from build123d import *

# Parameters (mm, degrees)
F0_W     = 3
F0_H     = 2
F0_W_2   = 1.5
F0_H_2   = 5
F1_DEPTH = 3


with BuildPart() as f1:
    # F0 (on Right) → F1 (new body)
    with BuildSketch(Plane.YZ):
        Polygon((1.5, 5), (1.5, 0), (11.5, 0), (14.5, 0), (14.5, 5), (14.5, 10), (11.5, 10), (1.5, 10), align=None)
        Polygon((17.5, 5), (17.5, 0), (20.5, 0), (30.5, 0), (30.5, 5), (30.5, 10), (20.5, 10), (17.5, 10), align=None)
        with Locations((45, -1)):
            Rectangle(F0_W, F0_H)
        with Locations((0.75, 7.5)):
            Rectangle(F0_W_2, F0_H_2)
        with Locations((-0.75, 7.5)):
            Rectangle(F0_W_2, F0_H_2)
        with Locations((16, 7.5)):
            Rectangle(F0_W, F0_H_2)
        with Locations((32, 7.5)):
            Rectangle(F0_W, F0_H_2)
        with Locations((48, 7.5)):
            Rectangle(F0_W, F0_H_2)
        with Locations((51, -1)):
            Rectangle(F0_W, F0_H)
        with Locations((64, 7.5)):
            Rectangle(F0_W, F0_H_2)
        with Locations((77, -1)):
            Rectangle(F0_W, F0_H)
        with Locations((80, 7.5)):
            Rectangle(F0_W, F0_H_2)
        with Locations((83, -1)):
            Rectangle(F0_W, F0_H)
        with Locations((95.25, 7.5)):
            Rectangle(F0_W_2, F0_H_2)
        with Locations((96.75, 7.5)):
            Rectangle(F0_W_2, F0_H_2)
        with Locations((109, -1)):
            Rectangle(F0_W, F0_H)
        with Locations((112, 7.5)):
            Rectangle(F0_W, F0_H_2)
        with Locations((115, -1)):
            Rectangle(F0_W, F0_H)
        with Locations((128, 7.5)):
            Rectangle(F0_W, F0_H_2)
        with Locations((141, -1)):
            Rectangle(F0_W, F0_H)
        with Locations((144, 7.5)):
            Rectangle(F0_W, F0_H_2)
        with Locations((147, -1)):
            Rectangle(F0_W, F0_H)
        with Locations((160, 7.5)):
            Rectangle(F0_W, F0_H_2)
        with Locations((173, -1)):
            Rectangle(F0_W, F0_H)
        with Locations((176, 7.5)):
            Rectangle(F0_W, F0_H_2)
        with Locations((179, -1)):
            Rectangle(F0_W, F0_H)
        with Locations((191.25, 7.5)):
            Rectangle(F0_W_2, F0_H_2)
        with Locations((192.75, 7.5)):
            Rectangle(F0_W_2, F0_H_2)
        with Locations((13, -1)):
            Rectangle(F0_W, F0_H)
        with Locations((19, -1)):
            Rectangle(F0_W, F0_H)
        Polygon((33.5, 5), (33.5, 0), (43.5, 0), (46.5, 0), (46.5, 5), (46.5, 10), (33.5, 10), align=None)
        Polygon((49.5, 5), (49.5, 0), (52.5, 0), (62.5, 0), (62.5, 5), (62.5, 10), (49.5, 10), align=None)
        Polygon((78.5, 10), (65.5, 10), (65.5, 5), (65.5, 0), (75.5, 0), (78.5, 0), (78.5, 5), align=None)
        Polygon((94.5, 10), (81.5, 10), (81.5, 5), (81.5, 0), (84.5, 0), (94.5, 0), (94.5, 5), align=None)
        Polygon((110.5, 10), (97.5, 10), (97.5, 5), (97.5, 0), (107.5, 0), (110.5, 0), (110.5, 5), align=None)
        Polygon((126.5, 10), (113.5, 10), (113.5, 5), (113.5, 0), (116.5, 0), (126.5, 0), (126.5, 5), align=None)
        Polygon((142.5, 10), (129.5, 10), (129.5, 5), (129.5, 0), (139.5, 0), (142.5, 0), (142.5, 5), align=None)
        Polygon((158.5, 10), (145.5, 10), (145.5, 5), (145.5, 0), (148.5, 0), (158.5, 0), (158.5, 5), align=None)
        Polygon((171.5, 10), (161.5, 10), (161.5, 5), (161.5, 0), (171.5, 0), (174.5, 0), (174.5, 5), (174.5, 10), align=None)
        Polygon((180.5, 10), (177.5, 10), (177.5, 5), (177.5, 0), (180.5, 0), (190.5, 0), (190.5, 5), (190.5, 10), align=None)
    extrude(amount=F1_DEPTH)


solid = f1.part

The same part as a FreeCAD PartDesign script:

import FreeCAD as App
import Part
import Sketcher

V = App.Vector
Q = App.Units.Quantity


def add_polygon(sketch, points):
    """Adds a closed chain of lines whose ends are joined by coincident constraints."""
    first, n = sketch.GeometryCount, len(points)
    for a, b in zip(points, points[1:] + points[:1]):
        sketch.addGeometry(Part.LineSegment(App.Vector(*a, 0), App.Vector(*b, 0)), False)
    for i in range(n):
        sketch.addConstraint(Sketcher.Constraint("Coincident", first + i, 2, first + (i + 1) % n, 1))

doc = App.newDocument("Part")
params = doc.addObject("Spreadsheet::Sheet", "Params")
for row, (alias, value) in enumerate([
    ("sketch1_width", "10 mm"),
    ("sketch1_width2", "3 mm"),
    ("sketch1_height", "2 mm"),
    ("sketch1_height2", "7 mm"),
    ("pad1_length", "3 mm"),
], start=1):
    params.set(f"A{row}", alias)
    params.set(f"B{row}", "=" + value)
    params.setAlias(f"B{row}", alias)

body = doc.addObject("PartDesign::Body", "Body")

sketch1 = body.newObject("Sketcher::SketchObject", "Sketch")
sketch1.AttachmentSupport = (doc.getObject("YZ_Plane"), [""])
sketch1.MapMode = "FlatFace"
add_polygon(sketch1, [(1.5, 0), (11.5, 0), (11.5, -2), (14.5, -2), (14.5, 5), (17.5, 5), (17.5, -2), (20.5, -2), (20.5, 0), (30.5, 0), (30.5, 5), (33.5, 5), (33.5, 0), (43.5, 0), (43.5, -2), (46.5, -2), (46.5, 5), (49.5, 5), (49.5, -2), (52.5, -2), (52.5, 0), (62.5, 0), (62.5, 5), (65.5, 5), (65.5, 0), (75.5, 0), (75.5, -2), (78.5, -2), (78.5, 5), (81.5, 5), (81.5, -2), (84.5, -2), (84.5, 0), (94.5, 0), (94.5, 5), (97.5, 5), (97.5, 0), (107.5, 0), (107.5, -2), (110.5, -2), (110.5, 5), (113.5, 5), (113.5, -2), (116.5, -2), (116.5, 0), (126.5, 0), (126.5, 5), (129.5, 5), (129.5, 0), (139.5, 0), (139.5, -2), (142.5, -2), (142.5, 5), (145.5, 5), (145.5, -2), (148.5, -2), (148.5, 0), (158.5, 0), (158.5, 5), (161.5, 5), (161.5, 0), (171.5, 0), (171.5, -2), (174.5, -2), (174.5, 5), (177.5, 5), (177.5, -2), (180.5, -2), (180.5, 0), (190.5, 0), (190.5, 5), (193.5, 5), (193.5, 10), (-1.5, 10), (-1.5, 5), (1.5, 5)])
sketch1.addConstraint([
    Sketcher.Constraint("Horizontal", 0),
    Sketcher.Constraint("Vertical", 1),
    Sketcher.Constraint("Horizontal", 2),
    Sketcher.Constraint("Vertical", 3),
    Sketcher.Constraint("Horizontal", 4),
    Sketcher.Constraint("Vertical", 5),
    Sketcher.Constraint("Horizontal", 6),
    Sketcher.Constraint("Vertical", 7),
    Sketcher.Constraint("Horizontal", 8),
    Sketcher.Constraint("Vertical", 9),
    Sketcher.Constraint("Horizontal", 10),
    Sketcher.Constraint("Vertical", 11),
    Sketcher.Constraint("Horizontal", 12),
    Sketcher.Constraint("Vertical", 13),
    Sketcher.Constraint("Horizontal", 14),
    Sketcher.Constraint("Vertical", 15),
    Sketcher.Constraint("Horizontal", 16),
    Sketcher.Constraint("Vertical", 17),
    Sketcher.Constraint("Horizontal", 18),
    Sketcher.Constraint("Vertical", 19),
    Sketcher.Constraint("Horizontal", 20),
    Sketcher.Constraint("Vertical", 21),
    Sketcher.Constraint("Horizontal", 22),
    Sketcher.Constraint("Vertical", 23),
    Sketcher.Constraint("Horizontal", 24),
    Sketcher.Constraint("Vertical", 25),
    Sketcher.Constraint("Horizontal", 26),
    Sketcher.Constraint("Vertical", 27),
    Sketcher.Constraint("Horizontal", 28),
    Sketcher.Constraint("Vertical", 29),
    Sketcher.Constraint("Horizontal", 30),
    Sketcher.Constraint("Vertical", 31),
    Sketcher.Constraint("Horizontal", 32),
    Sketcher.Constraint("Vertical", 33),
    Sketcher.Constraint("Horizontal", 34),
    Sketcher.Constraint("Vertical", 35),
    Sketcher.Constraint("Horizontal", 36),
    Sketcher.Constraint("Vertical", 37),
    Sketcher.Constraint("Horizontal", 38),
    Sketcher.Constraint("Vertical", 39),
    Sketcher.Constraint("Horizontal", 40),
    Sketcher.Constraint("Vertical", 41),
    Sketcher.Constraint("Horizontal", 42),
    Sketcher.Constraint("Vertical", 43),
    Sketcher.Constraint("Horizontal", 44),
    Sketcher.Constraint("Vertical", 45),
    Sketcher.Constraint("Horizontal", 46),
    Sketcher.Constraint("Vertical", 47),
    Sketcher.Constraint("Horizontal", 48),
    Sketcher.Constraint("Vertical", 49),
    Sketcher.Constraint("Horizontal", 50),
    Sketcher.Constraint("Vertical", 51),
    Sketcher.Constraint("Horizontal", 52),
    Sketcher.Constraint("Vertical", 53),
    Sketcher.Constraint("Horizontal", 54),
    Sketcher.Constraint("Vertical", 55),
    Sketcher.Constraint("Horizontal", 56),
    Sketcher.Constraint("Vertical", 57),
    Sketcher.Constraint("Horizontal", 58),
    Sketcher.Constraint("Vertical", 59),
    Sketcher.Constraint("Horizontal", 60),
    Sketcher.Constraint("Vertical", 61),
    Sketcher.Constraint("Horizontal", 62),
    Sketcher.Constraint("Vertical", 63),
    Sketcher.Constraint("Horizontal", 64),
    Sketcher.Constraint("Vertical", 65),
    Sketcher.Constraint("Horizontal", 66),
    Sketcher.Constraint("Vertical", 67),
    Sketcher.Constraint("Horizontal", 68),
    Sketcher.Constraint("Vertical", 69),
    Sketcher.Constraint("Horizontal", 70),
    Sketcher.Constraint("Vertical", 71),
    Sketcher.Constraint("Horizontal", 72),
    Sketcher.Constraint("Vertical", 73),
    Sketcher.Constraint("Horizontal", 74),
    Sketcher.Constraint("Vertical", 75),
    Sketcher.Constraint("PointOnObject", 0, 2, -1),
    Sketcher.Constraint("PointOnObject", 7, 2, -1),
    Sketcher.Constraint("PointOnObject", 11, 2, -1),
    Sketcher.Constraint("PointOnObject", 19, 2, -1),
    Sketcher.Constraint("PointOnObject", 23, 2, -1),
    Sketcher.Constraint("PointOnObject", 31, 2, -1),
    Sketcher.Constraint("PointOnObject", 35, 2, -1),
    Sketcher.Constraint("PointOnObject", 43, 2, -1),
    Sketcher.Constraint("PointOnObject", 47, 2, -1),
    Sketcher.Constraint("PointOnObject", 55, 2, -1),
    Sketcher.Constraint("PointOnObject", 59, 2, -1),
    Sketcher.Constraint("PointOnObject", 67, 2, -1),
    Sketcher.Constraint("Horizontal", 2, 2, 5, 2),
    Sketcher.Constraint("Horizontal", 4, 2, 9, 2),
    Sketcher.Constraint("Horizontal", 6, 2, 13, 2),
    Sketcher.Constraint("Horizontal", 10, 2, 15, 2),
    Sketcher.Constraint("Horizontal", 14, 2, 17, 2),
    Sketcher.Constraint("Horizontal", 16, 2, 21, 2),
    Sketcher.Constraint("Horizontal", 18, 2, 25, 2),
    Sketcher.Constraint("Horizontal", 22, 2, 27, 2),
    Sketcher.Constraint("Horizontal", 26, 2, 29, 2),
    Sketcher.Constraint("Horizontal", 28, 2, 33, 2),
    Sketcher.Constraint("Horizontal", 30, 2, 37, 2),
    Sketcher.Constraint("Horizontal", 34, 2, 39, 2),
    Sketcher.Constraint("Horizontal", 38, 2, 41, 2),
    Sketcher.Constraint("Horizontal", 40, 2, 45, 2),
    Sketcher.Constraint("Horizontal", 42, 2, 49, 2),
    Sketcher.Constraint("Horizontal", 46, 2, 51, 2),
    Sketcher.Constraint("Horizontal", 50, 2, 53, 2),
    Sketcher.Constraint("Horizontal", 52, 2, 57, 2),
    Sketcher.Constraint("Horizontal", 54, 2, 61, 2),
    Sketcher.Constraint("Horizontal", 58, 2, 63, 2),
    Sketcher.Constraint("Horizontal", 62, 2, 65, 2),
    Sketcher.Constraint("Horizontal", 64, 2, 69, 2),
    Sketcher.Constraint("Horizontal", 70, 2, 73, 2),
    Sketcher.Constraint("Equal", 2, 4),
    Sketcher.Constraint("Equal", 4, 6),
    Sketcher.Constraint("Equal", 0, 8),
    Sketcher.Constraint("Equal", 6, 10),
    Sketcher.Constraint("Equal", 8, 12),
    Sketcher.Constraint("Equal", 10, 14),
    Sketcher.Constraint("Equal", 14, 16),
    Sketcher.Constraint("Equal", 16, 18),
    Sketcher.Constraint("Equal", 12, 20),
    Sketcher.Constraint("Equal", 18, 22),
    Sketcher.Constraint("Equal", 20, 24),
    Sketcher.Constraint("Equal", 22, 26),
    Sketcher.Constraint("Equal", 26, 28),
    Sketcher.Constraint("Equal", 28, 30),
    Sketcher.Constraint("Equal", 24, 32),
    Sketcher.Constraint("Equal", 30, 34),
    Sketcher.Constraint("Equal", 32, 36),
    Sketcher.Constraint("Equal", 34, 38),
    Sketcher.Constraint("Equal", 38, 40),
    Sketcher.Constraint("Equal", 40, 42),
    Sketcher.Constraint("Equal", 36, 44),
    Sketcher.Constraint("Equal", 42, 46),
    Sketcher.Constraint("Equal", 44, 48),
    Sketcher.Constraint("Equal", 46, 50),
    Sketcher.Constraint("Equal", 50, 52),
    Sketcher.Constraint("Equal", 52, 54),
    Sketcher.Constraint("Equal", 48, 56),
    Sketcher.Constraint("Equal", 54, 58),
    Sketcher.Constraint("Equal", 56, 60),
    Sketcher.Constraint("Equal", 58, 62),
    Sketcher.Constraint("Equal", 62, 64),
    Sketcher.Constraint("Equal", 64, 66),
    Sketcher.Constraint("Equal", 60, 68),
    Sketcher.Constraint("Equal", 66, 70),
    Sketcher.Constraint("Equal", 70, 74),
    Sketcher.Constraint("Equal", 69, 71),
    Sketcher.Constraint("DistanceX", 0, 1, 0, 2, Q("10 mm")),
    Sketcher.Constraint("DistanceX", 2, 1, 2, 2, Q("3 mm")),
    Sketcher.Constraint("DistanceY", 1, 2, 1, 1, Q("2 mm")),
    Sketcher.Constraint("DistanceY", 3, 1, 3, 2, Q("7 mm")),
    Sketcher.Constraint("DistanceX", -1, 1, 0, 2, Q("11.5 mm")),
])
sketch1.setExpression("Constraints[223]", "Params.sketch1_width")
sketch1.setExpression("Constraints[224]", "Params.sketch1_width2")
sketch1.setExpression("Constraints[225]", "Params.sketch1_height")
sketch1.setExpression("Constraints[226]", "Params.sketch1_height2")
pad1 = body.newObject("PartDesign::Pad", "Pad")
pad1.Profile = sketch1
pad1.setExpression("Length", "Params.pad1_length")

doc.recompute()
